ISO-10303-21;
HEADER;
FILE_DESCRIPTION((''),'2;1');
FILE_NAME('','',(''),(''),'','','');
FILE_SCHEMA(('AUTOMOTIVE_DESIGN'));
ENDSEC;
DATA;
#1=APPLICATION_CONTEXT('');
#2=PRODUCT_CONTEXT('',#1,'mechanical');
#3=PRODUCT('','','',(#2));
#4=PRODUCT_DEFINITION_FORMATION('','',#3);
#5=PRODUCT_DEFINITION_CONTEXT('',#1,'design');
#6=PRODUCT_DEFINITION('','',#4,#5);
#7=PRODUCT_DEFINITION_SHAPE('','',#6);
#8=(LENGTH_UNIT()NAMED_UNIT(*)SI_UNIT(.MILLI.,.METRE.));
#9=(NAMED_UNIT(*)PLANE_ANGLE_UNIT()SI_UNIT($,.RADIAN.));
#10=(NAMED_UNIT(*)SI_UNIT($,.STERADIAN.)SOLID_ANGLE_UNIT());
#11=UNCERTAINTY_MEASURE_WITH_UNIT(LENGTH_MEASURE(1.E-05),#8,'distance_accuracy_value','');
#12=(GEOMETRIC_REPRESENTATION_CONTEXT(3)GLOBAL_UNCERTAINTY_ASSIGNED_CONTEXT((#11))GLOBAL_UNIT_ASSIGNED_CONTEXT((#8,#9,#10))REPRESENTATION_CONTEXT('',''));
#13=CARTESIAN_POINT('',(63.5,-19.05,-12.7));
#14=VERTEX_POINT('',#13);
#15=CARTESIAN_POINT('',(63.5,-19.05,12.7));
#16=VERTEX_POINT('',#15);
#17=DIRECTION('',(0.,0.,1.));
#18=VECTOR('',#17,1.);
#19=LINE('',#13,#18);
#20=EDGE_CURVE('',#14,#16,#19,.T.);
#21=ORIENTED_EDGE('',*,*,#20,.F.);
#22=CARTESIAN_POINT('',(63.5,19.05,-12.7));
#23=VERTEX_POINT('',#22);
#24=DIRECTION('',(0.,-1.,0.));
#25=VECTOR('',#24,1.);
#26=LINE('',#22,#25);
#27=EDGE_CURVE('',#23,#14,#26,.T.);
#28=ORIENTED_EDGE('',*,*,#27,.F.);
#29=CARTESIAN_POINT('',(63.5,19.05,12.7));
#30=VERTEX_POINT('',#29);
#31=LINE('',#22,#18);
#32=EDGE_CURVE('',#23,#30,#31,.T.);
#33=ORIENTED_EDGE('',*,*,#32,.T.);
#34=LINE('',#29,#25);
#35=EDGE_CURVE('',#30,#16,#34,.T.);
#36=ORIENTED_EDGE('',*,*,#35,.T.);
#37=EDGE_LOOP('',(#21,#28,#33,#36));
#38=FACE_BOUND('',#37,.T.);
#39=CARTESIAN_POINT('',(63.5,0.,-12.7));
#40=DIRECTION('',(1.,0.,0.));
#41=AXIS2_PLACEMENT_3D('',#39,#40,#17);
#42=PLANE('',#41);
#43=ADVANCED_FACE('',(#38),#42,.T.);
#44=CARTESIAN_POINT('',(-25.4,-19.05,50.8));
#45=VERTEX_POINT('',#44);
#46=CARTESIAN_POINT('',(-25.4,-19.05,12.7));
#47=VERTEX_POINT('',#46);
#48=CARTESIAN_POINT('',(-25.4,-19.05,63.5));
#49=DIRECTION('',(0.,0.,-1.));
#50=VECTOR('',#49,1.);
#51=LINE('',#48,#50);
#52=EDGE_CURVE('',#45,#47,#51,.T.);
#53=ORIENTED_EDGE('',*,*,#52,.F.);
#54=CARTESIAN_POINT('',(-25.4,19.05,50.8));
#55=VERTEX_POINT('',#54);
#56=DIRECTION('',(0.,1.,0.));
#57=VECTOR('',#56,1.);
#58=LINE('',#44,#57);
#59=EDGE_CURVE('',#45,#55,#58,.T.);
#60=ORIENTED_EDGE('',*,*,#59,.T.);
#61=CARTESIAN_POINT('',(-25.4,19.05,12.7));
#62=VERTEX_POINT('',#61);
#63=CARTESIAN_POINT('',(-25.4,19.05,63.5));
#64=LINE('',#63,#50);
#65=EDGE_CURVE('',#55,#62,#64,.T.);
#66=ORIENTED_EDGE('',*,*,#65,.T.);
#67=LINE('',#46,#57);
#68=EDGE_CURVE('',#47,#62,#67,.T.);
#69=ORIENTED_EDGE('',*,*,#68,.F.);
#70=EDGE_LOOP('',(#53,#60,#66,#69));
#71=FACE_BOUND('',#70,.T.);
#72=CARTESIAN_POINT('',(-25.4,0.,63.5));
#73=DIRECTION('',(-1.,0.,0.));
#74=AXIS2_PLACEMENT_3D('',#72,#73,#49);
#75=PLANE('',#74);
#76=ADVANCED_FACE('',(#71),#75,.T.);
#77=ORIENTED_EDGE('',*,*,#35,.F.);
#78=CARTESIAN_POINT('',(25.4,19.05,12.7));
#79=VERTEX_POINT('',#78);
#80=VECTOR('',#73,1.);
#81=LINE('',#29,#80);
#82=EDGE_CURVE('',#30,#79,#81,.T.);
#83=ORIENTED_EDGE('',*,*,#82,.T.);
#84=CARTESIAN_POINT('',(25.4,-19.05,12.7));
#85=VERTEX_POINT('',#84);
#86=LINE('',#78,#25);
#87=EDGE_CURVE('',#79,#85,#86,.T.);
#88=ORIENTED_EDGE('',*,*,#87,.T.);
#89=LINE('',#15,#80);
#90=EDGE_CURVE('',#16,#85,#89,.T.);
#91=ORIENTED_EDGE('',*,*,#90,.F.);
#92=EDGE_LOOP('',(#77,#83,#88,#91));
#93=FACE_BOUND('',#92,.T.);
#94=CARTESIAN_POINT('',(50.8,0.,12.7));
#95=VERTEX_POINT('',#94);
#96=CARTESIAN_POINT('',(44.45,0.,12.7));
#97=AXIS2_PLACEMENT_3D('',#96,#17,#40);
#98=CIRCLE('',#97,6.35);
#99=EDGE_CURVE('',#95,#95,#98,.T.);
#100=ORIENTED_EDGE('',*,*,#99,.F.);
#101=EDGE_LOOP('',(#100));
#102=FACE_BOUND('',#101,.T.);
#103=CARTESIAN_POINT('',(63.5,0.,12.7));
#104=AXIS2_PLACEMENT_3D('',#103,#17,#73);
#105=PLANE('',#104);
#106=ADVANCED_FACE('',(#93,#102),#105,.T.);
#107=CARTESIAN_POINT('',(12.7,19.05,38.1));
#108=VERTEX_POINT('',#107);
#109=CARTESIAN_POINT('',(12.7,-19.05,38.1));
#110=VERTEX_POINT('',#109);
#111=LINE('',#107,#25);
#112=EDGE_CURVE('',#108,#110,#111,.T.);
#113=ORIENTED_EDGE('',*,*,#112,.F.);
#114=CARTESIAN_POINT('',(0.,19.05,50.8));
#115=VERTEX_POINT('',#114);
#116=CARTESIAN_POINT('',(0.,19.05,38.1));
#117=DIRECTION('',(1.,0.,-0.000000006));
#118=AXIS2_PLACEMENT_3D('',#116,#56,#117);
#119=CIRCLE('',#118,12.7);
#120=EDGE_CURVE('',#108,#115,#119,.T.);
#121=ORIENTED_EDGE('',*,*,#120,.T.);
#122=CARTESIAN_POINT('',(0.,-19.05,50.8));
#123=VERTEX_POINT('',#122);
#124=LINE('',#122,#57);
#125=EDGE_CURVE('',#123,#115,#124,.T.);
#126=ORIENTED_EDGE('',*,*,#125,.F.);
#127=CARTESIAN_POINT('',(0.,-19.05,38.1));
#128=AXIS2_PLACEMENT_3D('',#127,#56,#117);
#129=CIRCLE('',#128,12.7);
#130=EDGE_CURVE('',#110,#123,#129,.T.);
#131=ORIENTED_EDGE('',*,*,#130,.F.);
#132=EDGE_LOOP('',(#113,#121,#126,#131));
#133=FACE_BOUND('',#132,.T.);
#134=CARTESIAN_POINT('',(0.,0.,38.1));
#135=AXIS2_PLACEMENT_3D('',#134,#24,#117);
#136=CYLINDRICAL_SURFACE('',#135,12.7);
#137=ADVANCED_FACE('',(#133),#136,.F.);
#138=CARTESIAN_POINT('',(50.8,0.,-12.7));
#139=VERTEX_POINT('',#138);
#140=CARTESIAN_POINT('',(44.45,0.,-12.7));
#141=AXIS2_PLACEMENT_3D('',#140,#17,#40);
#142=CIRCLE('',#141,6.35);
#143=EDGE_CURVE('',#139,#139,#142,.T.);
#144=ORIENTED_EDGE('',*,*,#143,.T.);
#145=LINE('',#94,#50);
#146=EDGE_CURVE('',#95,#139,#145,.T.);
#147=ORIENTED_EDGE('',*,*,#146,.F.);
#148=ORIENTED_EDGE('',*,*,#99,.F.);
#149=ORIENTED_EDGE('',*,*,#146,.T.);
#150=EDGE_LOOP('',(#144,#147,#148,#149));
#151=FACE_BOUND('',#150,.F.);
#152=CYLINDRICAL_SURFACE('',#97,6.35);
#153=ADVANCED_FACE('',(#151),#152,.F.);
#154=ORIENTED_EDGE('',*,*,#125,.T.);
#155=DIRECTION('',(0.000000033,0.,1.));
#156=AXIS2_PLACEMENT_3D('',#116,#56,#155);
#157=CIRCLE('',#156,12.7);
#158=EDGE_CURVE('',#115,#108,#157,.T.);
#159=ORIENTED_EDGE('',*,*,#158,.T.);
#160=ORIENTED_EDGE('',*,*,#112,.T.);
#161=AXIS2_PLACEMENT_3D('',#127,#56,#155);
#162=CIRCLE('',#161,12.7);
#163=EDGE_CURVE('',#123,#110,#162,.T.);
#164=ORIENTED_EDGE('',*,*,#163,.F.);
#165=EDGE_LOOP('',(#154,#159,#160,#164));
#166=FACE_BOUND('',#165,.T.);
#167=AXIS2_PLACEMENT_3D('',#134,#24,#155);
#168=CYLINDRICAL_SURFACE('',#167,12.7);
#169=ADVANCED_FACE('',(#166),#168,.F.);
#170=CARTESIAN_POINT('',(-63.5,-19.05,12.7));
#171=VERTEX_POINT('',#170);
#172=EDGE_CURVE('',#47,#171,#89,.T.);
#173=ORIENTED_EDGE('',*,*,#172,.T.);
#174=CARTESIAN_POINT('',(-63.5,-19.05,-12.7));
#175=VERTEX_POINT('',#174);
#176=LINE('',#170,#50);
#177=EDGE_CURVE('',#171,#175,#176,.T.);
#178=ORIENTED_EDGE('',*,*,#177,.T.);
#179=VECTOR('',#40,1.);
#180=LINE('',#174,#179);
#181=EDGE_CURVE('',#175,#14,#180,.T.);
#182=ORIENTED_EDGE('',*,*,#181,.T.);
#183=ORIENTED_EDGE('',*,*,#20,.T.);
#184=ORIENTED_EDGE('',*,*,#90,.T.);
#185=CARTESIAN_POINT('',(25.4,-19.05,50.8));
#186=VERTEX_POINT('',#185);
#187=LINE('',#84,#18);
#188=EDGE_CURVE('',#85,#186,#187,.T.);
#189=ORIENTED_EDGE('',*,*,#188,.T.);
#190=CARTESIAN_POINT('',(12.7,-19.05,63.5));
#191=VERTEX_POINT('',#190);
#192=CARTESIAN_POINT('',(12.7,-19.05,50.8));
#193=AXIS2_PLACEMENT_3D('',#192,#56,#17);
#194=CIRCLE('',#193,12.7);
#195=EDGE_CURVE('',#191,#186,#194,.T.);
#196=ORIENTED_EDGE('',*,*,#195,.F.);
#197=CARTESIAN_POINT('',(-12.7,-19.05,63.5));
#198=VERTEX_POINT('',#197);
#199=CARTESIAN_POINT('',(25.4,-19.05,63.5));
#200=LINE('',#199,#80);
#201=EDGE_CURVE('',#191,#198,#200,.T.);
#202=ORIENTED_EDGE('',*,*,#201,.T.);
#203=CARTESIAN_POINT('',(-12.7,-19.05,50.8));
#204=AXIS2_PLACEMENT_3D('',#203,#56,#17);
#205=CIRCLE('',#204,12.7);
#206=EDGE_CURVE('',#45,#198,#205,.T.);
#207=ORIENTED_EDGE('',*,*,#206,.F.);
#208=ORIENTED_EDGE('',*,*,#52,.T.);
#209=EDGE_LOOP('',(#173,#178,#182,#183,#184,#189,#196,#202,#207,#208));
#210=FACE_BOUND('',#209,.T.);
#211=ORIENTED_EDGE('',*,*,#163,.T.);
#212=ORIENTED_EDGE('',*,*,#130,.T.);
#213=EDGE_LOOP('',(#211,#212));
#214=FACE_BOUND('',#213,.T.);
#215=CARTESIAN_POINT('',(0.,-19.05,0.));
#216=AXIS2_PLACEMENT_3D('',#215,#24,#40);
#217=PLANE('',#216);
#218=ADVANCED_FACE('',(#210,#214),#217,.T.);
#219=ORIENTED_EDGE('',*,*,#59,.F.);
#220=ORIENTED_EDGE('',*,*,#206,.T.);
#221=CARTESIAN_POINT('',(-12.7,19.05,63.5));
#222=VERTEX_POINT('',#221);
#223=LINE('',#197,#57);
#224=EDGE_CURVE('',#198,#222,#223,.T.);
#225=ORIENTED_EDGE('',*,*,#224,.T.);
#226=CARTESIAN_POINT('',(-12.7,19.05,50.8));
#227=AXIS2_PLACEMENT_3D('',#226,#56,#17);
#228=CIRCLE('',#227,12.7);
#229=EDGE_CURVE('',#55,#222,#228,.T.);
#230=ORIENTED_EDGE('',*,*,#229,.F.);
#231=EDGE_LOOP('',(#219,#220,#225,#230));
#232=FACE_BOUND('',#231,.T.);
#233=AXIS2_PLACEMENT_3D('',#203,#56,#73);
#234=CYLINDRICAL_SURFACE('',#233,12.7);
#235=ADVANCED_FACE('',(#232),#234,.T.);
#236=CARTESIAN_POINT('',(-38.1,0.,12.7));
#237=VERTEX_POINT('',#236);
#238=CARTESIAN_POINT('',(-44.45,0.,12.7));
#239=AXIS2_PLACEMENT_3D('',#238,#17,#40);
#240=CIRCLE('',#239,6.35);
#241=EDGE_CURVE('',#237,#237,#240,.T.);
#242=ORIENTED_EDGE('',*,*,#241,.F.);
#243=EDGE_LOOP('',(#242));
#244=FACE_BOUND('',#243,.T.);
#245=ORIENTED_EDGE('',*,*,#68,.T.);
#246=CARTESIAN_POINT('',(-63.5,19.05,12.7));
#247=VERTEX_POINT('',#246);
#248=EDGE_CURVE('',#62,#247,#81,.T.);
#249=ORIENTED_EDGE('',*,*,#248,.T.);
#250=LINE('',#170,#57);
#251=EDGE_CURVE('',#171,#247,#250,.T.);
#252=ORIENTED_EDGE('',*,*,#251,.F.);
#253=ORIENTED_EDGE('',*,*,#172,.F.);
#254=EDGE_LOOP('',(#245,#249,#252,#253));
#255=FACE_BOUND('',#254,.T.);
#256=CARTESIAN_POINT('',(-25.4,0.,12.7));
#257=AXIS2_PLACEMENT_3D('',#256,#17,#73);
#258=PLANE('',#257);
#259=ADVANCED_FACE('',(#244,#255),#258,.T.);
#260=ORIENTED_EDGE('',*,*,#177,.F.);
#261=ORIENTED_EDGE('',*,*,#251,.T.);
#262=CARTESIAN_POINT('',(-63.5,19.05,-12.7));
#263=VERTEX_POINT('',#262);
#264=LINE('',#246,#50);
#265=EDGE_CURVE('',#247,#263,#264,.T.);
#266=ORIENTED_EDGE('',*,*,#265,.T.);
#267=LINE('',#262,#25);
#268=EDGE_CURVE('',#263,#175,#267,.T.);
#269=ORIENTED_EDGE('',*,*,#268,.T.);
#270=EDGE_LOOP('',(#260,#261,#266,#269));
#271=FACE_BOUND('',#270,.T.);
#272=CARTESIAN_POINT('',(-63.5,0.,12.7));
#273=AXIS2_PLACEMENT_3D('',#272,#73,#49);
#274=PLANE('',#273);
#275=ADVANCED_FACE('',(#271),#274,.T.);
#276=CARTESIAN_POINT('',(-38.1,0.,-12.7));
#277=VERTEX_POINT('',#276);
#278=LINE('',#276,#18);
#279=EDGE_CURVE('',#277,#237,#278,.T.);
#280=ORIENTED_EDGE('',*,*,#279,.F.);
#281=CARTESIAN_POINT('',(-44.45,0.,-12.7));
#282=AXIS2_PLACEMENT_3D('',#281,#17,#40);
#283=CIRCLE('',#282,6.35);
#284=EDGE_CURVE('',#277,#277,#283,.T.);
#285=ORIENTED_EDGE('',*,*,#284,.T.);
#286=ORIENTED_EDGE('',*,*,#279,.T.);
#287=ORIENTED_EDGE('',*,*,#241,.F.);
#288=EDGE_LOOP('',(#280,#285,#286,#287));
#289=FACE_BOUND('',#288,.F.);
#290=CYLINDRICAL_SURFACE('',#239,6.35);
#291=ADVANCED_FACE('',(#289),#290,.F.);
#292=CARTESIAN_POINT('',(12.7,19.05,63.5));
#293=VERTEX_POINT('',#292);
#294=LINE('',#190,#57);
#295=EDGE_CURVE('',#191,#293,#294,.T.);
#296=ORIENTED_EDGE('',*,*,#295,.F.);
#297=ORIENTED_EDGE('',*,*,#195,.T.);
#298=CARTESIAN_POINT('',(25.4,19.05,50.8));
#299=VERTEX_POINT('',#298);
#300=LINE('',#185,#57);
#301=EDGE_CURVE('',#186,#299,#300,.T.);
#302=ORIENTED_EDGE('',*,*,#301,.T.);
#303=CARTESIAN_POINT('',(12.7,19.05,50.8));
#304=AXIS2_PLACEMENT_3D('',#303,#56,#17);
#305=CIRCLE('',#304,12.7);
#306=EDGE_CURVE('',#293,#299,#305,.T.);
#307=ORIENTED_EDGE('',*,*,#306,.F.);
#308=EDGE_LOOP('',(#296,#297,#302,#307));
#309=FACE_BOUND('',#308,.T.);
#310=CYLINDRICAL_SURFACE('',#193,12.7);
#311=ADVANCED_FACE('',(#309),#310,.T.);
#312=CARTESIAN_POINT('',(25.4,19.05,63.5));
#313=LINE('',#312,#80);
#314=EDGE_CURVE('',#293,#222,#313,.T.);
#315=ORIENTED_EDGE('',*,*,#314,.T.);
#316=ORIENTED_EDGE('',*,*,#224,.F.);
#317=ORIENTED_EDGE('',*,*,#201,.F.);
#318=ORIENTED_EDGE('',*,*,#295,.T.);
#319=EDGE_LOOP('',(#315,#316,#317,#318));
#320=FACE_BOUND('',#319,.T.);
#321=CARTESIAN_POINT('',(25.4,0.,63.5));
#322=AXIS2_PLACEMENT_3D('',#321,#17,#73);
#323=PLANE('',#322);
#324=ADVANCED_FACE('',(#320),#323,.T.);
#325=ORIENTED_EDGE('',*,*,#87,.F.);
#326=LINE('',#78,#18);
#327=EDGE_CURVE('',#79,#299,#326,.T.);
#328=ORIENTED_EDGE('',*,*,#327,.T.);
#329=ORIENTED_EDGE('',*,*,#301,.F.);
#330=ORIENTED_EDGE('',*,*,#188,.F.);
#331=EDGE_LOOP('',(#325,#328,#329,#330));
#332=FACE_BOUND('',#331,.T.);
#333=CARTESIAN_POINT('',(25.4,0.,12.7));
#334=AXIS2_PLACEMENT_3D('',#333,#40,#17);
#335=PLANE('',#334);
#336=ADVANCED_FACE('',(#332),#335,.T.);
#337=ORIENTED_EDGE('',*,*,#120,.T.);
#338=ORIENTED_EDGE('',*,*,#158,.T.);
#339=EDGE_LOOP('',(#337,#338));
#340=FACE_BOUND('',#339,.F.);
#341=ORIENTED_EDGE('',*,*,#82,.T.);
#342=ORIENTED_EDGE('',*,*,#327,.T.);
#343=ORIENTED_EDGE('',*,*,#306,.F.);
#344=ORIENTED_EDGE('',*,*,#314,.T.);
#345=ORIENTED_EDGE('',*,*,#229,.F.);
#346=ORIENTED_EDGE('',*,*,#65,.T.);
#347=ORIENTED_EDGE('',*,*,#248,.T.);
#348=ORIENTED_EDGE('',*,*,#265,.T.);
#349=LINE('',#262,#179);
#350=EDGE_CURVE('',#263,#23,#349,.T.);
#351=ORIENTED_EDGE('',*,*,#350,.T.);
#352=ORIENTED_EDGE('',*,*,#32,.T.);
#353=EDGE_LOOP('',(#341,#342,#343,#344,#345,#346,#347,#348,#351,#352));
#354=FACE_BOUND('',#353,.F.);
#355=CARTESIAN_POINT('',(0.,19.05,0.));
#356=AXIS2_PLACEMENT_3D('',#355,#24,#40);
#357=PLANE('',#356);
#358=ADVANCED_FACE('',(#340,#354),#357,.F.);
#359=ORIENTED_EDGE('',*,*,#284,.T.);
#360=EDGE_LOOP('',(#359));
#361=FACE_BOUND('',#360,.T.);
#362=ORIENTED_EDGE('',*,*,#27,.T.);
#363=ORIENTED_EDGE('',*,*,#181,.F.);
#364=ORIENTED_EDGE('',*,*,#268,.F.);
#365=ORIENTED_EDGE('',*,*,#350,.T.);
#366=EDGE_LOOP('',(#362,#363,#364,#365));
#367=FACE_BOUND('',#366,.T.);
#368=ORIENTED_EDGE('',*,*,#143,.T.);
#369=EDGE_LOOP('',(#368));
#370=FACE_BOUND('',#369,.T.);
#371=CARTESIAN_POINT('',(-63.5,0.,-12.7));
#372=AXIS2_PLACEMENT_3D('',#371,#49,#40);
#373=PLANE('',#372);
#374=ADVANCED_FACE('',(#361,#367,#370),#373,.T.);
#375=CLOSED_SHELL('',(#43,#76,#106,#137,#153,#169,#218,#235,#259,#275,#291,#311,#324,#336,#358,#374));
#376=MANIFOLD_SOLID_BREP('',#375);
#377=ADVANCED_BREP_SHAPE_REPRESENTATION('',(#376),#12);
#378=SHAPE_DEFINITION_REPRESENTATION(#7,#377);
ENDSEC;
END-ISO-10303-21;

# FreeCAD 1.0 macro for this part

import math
import FreeCAD as App
import Part
import Sketcher

V = App.Vector
Q = App.Units.Quantity


def edges_at(feature, points):
    """Names of the edges that pass closest to the given points."""
    edges = feature.Shape.Edges
    near = lambda p: min(range(len(edges)), key=lambda i: edges[i].distToShape(Part.Vertex(*p))[0])
    return sorted({f"Edge{near(p) + 1}" for p in points})


def add_polygon(sketch, points):
    """Adds a closed chain of lines whose ends are joined by coincident constraints."""
    first, n = sketch.GeometryCount, len(points)
    for a, b in zip(points, points[1:] + points[:1]):
        sketch.addGeometry(Part.LineSegment(App.Vector(*a, 0), App.Vector(*b, 0)), False)
    for i in range(n):
        sketch.addConstraint(Sketcher.Constraint("Coincident", first + i, 2, first + (i + 1) % n, 1))

doc = App.newDocument("Part")
params = doc.addObject("Spreadsheet::Sheet", "Params")
for row, (alias, value) in enumerate([
    ("sketch1_radius", "0.5 in"),
    ("sketch1_width", "5 in"),
    ("sketch1_width2", "2 in"),
    ("sketch1_height", "1 in"),
    ("pad1_length", "1.5 in"),
    ("fillet_radius", "0.5 in"),
    ("sketch2_diameter", "0.5 in"),
    ("pocket1_length", "2 in"),
], start=1):
    params.set(f"A{row}", alias)
    params.set(f"B{row}", "=" + value)
    params.setAlias(f"B{row}", alias)

body = doc.addObject("PartDesign::Body", "Body")

# Sketch on XZ plane
sketch1 = body.newObject("Sketcher::SketchObject", "Sketch")
sketch1.AttachmentSupport = (doc.getObject("XZ_Plane"), [""])
sketch1.MapMode = "FlatFace"
add_polygon(sketch1, [(-63.5, 12.7), (-63.5, -12.7), (63.5, -12.7), (63.5, 12.7), (25.4, 12.7), (25.4, 63.5), (-25.4, 63.5), (-25.4, 12.7)])  # lines 0-7
sketch1.addGeometry(Part.ArcOfCircle(Part.Circle(V(0, 38.1, 0), V(0, 0, 1), 12.7), math.radians(0.000002), math.radians(89.999998)), False)  # 8
sketch1.addGeometry(Part.ArcOfCircle(Part.Circle(V(0, 38.1, 0), V(0, 0, 1), 12.7), math.radians(90), math.radians(360)), False)  # 9
sketch1.addConstraint(Sketcher.Constraint("Tangent", 8, 1, 9, 2))
sketch1.addConstraint(Sketcher.Constraint("Coincident", 9, 1, 8, 2))
sketch1.addConstraint(Sketcher.Constraint("Vertical", 0))
sketch1.addConstraint(Sketcher.Constraint("Horizontal", 1))
sketch1.addConstraint(Sketcher.Constraint("Vertical", 2))
sketch1.addConstraint(Sketcher.Constraint("Horizontal", 3))
sketch1.addConstraint(Sketcher.Constraint("Vertical", 4))
sketch1.addConstraint(Sketcher.Constraint("Horizontal", 5))
sketch1.addConstraint(Sketcher.Constraint("Vertical", 6))
sketch1.addConstraint(Sketcher.Constraint("Horizontal", 7))
sketch1.addConstraint(Sketcher.Constraint("Symmetric", 0, 2, 2, 2, -1, 1))
sketch1.addConstraint(Sketcher.Constraint("Symmetric", 3, 2, 6, 2, -2))
sketch1.addConstraint(Sketcher.Constraint("PointOnObject", 8, 3, -2))
sketch1.addConstraint(Sketcher.Constraint("PointOnObject", 9, 1, -2))
sketch1.addConstraint(Sketcher.Constraint("Horizontal", 9, 3, 8, 1))
sketch1.addConstraint(Sketcher.Constraint("Equal", 5, 4))
sketch1.addConstraint(Sketcher.Constraint("Radius", 8, Q("0.5 in")))
sketch1.addConstraint(Sketcher.Constraint("DistanceX", 1, 1, 1, 2, Q("5 in")))
sketch1.addConstraint(Sketcher.Constraint("DistanceX", 5, 2, 5, 1, Q("2 in")))
sketch1.addConstraint(Sketcher.Constraint("DistanceY", 0, 2, 0, 1, Q("1 in")))
sketch1.addConstraint(Sketcher.Constraint("DistanceY", -1, 1, 9, 1, Q("2 in")))
sketch1.setExpression("Constraints[24]", "Params.sketch1_radius")
sketch1.setExpression("Constraints[25]", "Params.sketch1_width")
sketch1.setExpression("Constraints[26]", "Params.sketch1_width2")
sketch1.setExpression("Constraints[27]", "Params.sketch1_height")
pad1 = body.newObject("PartDesign::Pad", "Pad")
pad1.Profile = sketch1
pad1.setExpression("Length", "Params.pad1_length")
pad1.Midplane = True
doc.recompute()

fillet = body.newObject("PartDesign::Fillet", "Fillet")
fillet.Base = (pad1, edges_at(pad1, [(-25.4, 0, 63.5), (25.4, 0, 63.5)]))
fillet.setExpression("Radius", "Params.fillet_radius")

# Sketch on XY plane
sketch2 = body.newObject("Sketcher::SketchObject", "Sketch001")
sketch2.AttachmentSupport = (doc.getObject("XY_Plane"), [""])
sketch2.MapMode = "FlatFace"
sketch2.AttachmentOffset = App.Placement(V(0, 0, 0.5 * 25.4), App.Rotation())
sketch2.addGeometry(Part.Circle(V(44.45, 0, 0), V(0, 0, 1), 6.35), False)
sketch2.addGeometry(Part.Circle(V(-44.45, 0, 0), V(0, 0, 1), 6.35), False)
sketch2.addConstraint(Sketcher.Constraint("Equal", 0, 1))
sketch2.addConstraint(Sketcher.Constraint("Symmetric", 0, 3, 1, 3, -1, 1))
sketch2.addConstraint(Sketcher.Constraint("PointOnObject", 0, 3, -1))
sketch2.addConstraint(Sketcher.Constraint("Diameter", 0, Q("0.5 in")))
sketch2.addConstraint(Sketcher.Constraint("DistanceX", 1, 3, 0, 3, Q("3.5 in")))
sketch2.setExpression("Constraints[3]", "Params.sketch2_diameter")
pocket1 = body.newObject("PartDesign::Pocket", "Pocket")
pocket1.Profile = sketch2
pocket1.setExpression("Length", "Params.pocket1_length")
pocket1.Midplane = True

doc.recompute()
